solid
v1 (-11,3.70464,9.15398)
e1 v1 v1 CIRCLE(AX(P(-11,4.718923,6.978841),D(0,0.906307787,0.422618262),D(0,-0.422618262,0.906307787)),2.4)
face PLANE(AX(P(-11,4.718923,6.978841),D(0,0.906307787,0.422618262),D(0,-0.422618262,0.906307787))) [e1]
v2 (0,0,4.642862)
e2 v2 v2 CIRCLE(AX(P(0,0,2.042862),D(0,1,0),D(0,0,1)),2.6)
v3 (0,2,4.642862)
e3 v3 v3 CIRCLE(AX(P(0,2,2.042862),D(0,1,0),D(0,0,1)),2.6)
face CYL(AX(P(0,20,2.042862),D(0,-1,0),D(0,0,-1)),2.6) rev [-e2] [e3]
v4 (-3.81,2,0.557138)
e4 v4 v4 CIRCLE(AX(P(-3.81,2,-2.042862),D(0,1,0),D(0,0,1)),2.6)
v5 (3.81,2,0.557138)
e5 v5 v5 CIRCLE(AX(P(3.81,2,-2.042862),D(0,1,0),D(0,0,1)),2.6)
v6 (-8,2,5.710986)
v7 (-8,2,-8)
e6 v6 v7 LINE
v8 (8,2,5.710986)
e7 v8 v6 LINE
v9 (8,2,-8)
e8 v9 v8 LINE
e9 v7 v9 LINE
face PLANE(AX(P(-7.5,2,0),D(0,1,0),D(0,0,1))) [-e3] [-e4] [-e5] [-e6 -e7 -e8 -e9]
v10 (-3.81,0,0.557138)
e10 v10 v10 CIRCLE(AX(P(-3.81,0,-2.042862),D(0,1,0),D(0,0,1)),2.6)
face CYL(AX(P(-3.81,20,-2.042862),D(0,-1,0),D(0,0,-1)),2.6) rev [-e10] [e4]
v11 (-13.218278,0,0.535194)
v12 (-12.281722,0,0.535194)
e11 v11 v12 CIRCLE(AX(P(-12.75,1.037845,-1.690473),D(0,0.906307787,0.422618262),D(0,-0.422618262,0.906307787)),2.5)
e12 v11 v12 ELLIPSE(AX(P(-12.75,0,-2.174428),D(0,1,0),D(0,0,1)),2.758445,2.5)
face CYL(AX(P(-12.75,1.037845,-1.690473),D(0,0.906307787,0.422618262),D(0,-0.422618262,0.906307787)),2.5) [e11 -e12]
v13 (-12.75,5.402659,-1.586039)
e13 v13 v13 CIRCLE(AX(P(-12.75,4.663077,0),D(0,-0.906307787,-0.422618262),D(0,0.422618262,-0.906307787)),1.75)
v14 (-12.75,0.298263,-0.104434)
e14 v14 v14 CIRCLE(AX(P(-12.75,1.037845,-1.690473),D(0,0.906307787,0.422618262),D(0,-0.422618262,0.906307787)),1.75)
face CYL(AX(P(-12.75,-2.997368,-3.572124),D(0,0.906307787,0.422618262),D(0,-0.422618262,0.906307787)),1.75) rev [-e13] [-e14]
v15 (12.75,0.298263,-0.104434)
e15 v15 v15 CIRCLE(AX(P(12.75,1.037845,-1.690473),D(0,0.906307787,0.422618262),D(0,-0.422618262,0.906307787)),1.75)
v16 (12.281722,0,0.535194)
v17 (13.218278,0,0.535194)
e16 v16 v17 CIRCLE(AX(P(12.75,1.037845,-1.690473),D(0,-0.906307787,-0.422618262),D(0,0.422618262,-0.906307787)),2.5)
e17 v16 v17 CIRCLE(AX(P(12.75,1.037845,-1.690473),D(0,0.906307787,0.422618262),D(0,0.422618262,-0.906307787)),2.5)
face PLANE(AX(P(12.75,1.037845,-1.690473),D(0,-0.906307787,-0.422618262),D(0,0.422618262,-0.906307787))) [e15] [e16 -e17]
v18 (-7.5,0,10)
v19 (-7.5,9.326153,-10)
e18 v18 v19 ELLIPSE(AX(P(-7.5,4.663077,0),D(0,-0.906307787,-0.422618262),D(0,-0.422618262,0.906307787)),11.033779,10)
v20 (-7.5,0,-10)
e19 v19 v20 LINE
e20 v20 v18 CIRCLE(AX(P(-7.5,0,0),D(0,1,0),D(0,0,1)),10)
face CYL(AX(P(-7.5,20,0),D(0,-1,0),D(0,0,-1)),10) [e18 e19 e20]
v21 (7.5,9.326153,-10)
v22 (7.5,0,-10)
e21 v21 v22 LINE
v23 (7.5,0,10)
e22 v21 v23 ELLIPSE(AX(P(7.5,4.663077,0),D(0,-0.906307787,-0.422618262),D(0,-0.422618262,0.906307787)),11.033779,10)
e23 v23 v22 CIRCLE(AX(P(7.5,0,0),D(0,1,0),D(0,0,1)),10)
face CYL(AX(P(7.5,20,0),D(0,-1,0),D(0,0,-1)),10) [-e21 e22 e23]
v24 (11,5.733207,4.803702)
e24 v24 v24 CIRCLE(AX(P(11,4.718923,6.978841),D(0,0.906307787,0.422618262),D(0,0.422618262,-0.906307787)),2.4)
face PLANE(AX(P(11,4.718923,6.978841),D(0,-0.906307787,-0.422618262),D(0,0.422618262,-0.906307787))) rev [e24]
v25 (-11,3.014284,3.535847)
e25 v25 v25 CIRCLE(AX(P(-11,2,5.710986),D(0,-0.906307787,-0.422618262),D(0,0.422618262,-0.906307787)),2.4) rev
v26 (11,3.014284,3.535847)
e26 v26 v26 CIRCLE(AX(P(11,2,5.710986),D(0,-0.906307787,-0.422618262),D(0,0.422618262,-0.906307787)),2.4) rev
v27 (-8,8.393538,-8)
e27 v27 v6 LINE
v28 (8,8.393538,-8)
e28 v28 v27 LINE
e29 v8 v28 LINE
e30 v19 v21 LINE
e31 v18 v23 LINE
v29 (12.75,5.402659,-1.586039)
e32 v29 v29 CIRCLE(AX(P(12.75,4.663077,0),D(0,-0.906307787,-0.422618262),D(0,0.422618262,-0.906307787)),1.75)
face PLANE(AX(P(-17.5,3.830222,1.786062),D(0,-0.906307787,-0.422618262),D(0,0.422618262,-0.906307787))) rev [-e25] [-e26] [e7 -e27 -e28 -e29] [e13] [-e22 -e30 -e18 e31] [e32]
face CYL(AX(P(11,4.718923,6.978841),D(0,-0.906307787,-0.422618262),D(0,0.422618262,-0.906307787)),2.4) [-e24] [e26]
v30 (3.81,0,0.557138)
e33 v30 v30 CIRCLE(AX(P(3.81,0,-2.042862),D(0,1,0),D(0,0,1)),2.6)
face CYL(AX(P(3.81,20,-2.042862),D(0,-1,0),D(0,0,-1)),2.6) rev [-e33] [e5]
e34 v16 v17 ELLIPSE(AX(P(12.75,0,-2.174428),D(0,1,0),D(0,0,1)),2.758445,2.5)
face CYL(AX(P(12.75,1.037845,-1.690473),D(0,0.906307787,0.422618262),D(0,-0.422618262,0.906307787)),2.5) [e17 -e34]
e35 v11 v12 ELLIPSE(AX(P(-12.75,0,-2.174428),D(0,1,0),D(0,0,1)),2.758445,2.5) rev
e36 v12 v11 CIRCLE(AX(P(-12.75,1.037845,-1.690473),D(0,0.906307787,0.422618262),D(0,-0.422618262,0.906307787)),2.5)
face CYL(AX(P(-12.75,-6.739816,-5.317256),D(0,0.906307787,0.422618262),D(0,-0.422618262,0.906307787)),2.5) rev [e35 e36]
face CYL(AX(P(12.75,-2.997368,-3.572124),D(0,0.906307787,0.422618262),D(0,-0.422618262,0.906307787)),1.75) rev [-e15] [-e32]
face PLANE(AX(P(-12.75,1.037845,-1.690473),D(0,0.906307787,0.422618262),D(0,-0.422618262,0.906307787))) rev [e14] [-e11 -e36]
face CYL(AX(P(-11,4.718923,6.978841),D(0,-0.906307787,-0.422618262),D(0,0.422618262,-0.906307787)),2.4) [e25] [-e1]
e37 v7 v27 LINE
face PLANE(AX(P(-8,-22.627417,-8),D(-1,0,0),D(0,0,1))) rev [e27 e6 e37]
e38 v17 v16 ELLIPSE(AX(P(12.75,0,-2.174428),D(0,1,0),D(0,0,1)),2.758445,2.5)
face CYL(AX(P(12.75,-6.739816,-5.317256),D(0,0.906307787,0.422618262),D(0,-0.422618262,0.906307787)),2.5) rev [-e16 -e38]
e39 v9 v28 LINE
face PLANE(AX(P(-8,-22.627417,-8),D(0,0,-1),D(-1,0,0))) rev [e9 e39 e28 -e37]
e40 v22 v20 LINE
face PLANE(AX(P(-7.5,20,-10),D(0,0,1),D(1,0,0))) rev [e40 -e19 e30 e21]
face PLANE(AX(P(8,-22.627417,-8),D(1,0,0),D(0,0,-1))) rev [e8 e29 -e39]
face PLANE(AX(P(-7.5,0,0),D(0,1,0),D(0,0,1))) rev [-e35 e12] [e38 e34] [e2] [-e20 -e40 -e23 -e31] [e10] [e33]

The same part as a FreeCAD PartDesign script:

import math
import FreeCAD as App
import Part
import Sketcher
Q = App.Units.Quantity

doc = App.newDocument("Part")
params = doc.addObject("Spreadsheet::Sheet", "Params")
for row, (alias, value) in enumerate([
    ("sketch1_radius", "10 mm"),
    ("sketch1_diameter", "5.2 mm"),
    ("sketch1_width", "15 mm"),
    ("pad1_length", "20 mm"),
    ("sketch2_width", "16 mm"),
    ("pocket1_length", "18 mm"),
    ("sketch3_width", "20 mm"),
    ("sketch4_diameter", "3.5 mm"),
    ("sketch5_diameter", "5 mm"),
    ("sketch5_diameter2", "3.5 mm"),
    ("pad2_length", "4 mm"),
    ("sketch6_diameter", "5 mm"),
    ("sketch6_diameter2", "3.5 mm"),
    ("pocket4_length", "2.310905 mm"),
    ("sketch7_diameter", "4.8 mm"),
    ("pad3_length", "3 mm"),
], start=1):
    params.set(f"A{row}", alias)
    params.set(f"B{row}", "=" + value)
    params.setAlias(f"B{row}", alias)

body = doc.addObject("PartDesign::Body", "Body")

# Sketch on XZ plane
sketch1 = doc.addObject("Sketcher::SketchObject", "Sketch")
body.addObject(sketch1)
sketch1.AttachmentSupport = (doc.XZ_Plane, [""])
sketch1.MapMode = "FlatFace"
sketch1.addGeometry([
    Part.LineSegment(App.Vector(7.5, -10, 0), App.Vector(-7.5, -10, 0)),  # 0
    Part.ArcOfCircle(Part.Circle(App.Vector(-7.5, 0, 0), App.Vector(0, 0, 1), 10), math.radians(90), math.radians(270)),  # 1
    Part.LineSegment(App.Vector(-7.5, 10, 0), App.Vector(7.5, 10, 0)),  # 2
    Part.ArcOfCircle(Part.Circle(App.Vector(7.5, 0, 0), App.Vector(0, 0, 1), 10), math.radians(-90), math.radians(90)),  # 3
    Part.Circle(App.Vector(0, 2.042862, 0), App.Vector(0, 0, 1), 2.6),  # 4
    Part.Circle(App.Vector(3.81, -2.042862, 0), App.Vector(0, 0, 1), 2.6),  # 5
    Part.Circle(App.Vector(-3.81, -2.042862, 0), App.Vector(0, 0, 1), 2.6),  # 6
], False)
sketch1.addConstraint([
    Sketcher.Constraint("Tangent", 0, 2, 1, 2),
    Sketcher.Constraint("Tangent", 1, 1, 2, 1),
    Sketcher.Constraint("Tangent", 2, 2, 3, 2),
    Sketcher.Constraint("Tangent", 3, 1, 0, 1),
    Sketcher.Constraint("Horizontal", 0),
    Sketcher.Constraint("Horizontal", 2),
    Sketcher.Constraint("Equal", 4, 5),
    Sketcher.Constraint("Equal", 5, 6),
    Sketcher.Constraint("Symmetric", 1, 3, 3, 3, -1, 1),
    Sketcher.Constraint("Symmetric", 5, 3, 6, 3, -2),
    Sketcher.Constraint("PointOnObject", 4, 3, -2),
    Sketcher.Constraint("Radius", 1, 10.0),
    Sketcher.Constraint("Diameter", 4, 5.2),
    Sketcher.Constraint("DistanceX", 0, 2, 0, 1, 15.0),
    Sketcher.Constraint("DistanceX", -1, 1, 5, 3, 3.81),
    Sketcher.Constraint("DistanceY", -1, 1, 4, 3, 2.042862),
    Sketcher.Constraint("DistanceY", 5, 3, -1, 1, 2.042862),
])
sketch1.setExpression("Constraints[11]", "Params.sketch1_radius")
sketch1.setExpression("Constraints[12]", "Params.sketch1_diameter")
sketch1.setExpression("Constraints[13]", "Params.sketch1_width")
pad1 = doc.addObject("PartDesign::Pad", "Pad")
body.addObject(pad1)
pad1.Profile = sketch1
pad1.setExpression("Length", "Params.pad1_length")
pad1.Reversed = True

# Sketch on XZ plane
sketch2 = doc.addObject("Sketcher::SketchObject", "Sketch001")
body.addObject(sketch2)
sketch2.AttachmentSupport = (doc.XZ_Plane, [""])
sketch2.MapMode = "FlatFace"
sketch2.AttachmentOffset = App.Placement(App.Vector(0, 0, -20), App.Rotation())
sketch2.addGeometry([
    Part.LineSegment(App.Vector(-8, -8, 0), App.Vector(-8, 8, 0)),
    Part.LineSegment(App.Vector(-8, 8, 0), App.Vector(8, 8, 0)),
    Part.LineSegment(App.Vector(8, 8, 0), App.Vector(8, -8, 0)),
    Part.LineSegment(App.Vector(8, -8, 0), App.Vector(-8, -8, 0)),
], False)
sketch2.addConstraint([
    Sketcher.Constraint("Coincident", 0, 2, 1, 1),
    Sketcher.Constraint("Coincident", 1, 2, 2, 1),
    Sketcher.Constraint("Coincident", 2, 2, 3, 1),
    Sketcher.Constraint("Coincident", 3, 2, 0, 1),
    Sketcher.Constraint("Vertical", 0),
    Sketcher.Constraint("Horizontal", 1),
    Sketcher.Constraint("Vertical", 2),
    Sketcher.Constraint("Horizontal", 3),
    Sketcher.Constraint("Symmetric", 0, 2, 2, 2, -1, 1),
    Sketcher.Constraint("Equal", 3, 0),
    Sketcher.Constraint("DistanceX", 1, 1, 1, 2, 16.0),
])
sketch2.setExpression("Constraints[10]", "Params.sketch2_width")
pocket1 = doc.addObject("PartDesign::Pocket", "Pocket")
body.addObject(pocket1)
pocket1.Profile = sketch2
pocket1.setExpression("Length", "Params.pocket1_length")
pocket1.Reversed = True

# Sketch on YZ plane
sketch3 = doc.addObject("Sketcher::SketchObject", "Sketch002")
body.addObject(sketch3)
sketch3.AttachmentSupport = (doc.YZ_Plane, [""])
sketch3.MapMode = "FlatFace"
sketch3.AttachmentOffset = App.Placement(App.Vector(0, 0, -8), App.Rotation())
sketch3.addGeometry([
    Part.LineSegment(App.Vector(2, 5.710986, 0), App.Vector(8.393538, -8, 0)),  # 0
    Part.LineSegment(App.Vector(8.393538, -8, 0), App.Vector(9.326153, -10, 0)),  # 1
    Part.LineSegment(App.Vector(9.326153, -10, 0), App.Vector(20, -10, 0)),  # 2
    Part.LineSegment(App.Vector(20, -10, 0), App.Vector(20, 10, 0)),  # 3
    Part.LineSegment(App.Vector(20, 10, 0), App.Vector(0, 10, 0)),  # 4
    Part.LineSegment(App.Vector(0, 10, 0), App.Vector(2, 5.710986, 0)),  # 5
], False)
sketch3.addConstraint([
    Sketcher.Constraint("Coincident", 0, 2, 1, 1),
    Sketcher.Constraint("Coincident", 1, 2, 2, 1),
    Sketcher.Constraint("Coincident", 2, 2, 3, 1),
    Sketcher.Constraint("Coincident", 3, 2, 4, 1),
    Sketcher.Constraint("Coincident", 4, 2, 5, 1),
    Sketcher.Constraint("Coincident", 5, 2, 0, 1),
    Sketcher.Constraint("Horizontal", 2),
    Sketcher.Constraint("Vertical", 3),
    Sketcher.Constraint("Horizontal", 4),
    Sketcher.Constraint("PointOnObject", 4, 2, -2),
    Sketcher.Constraint("Parallel", 0, 1),
    Sketcher.Constraint("Parallel", 1, 5),
    Sketcher.Constraint("Equal", 4, 3),
    Sketcher.Constraint("DistanceX", 4, 2, 4, 1, 20.0),
    Sketcher.Constraint("Angle", 0, Q("-65 deg")),
    Sketcher.Constraint("DistanceY", 0, 2, -1, 1, 8.0),
    Sketcher.Constraint("DistanceY", 1, 2, -1, 1, 10.0),
    Sketcher.Constraint("DistanceX", -1, 1, 5, 2, 2.0),
])
sketch3.setExpression("Constraints[13]", "Params.sketch3_width")
pocket2 = doc.addObject("PartDesign::Pocket", "Pocket001")
body.addObject(pocket2)
pocket2.Profile = sketch3
pocket2.Type = "ThroughAll"
pocket2.Midplane = True

# Sketch on an angled plane
sketch4 = doc.addObject("Sketcher::SketchObject", "Sketch003")
body.addObject(sketch4)
sketch4.Placement = App.Placement(App.Vector(0, 3.830222, 1.786062), App.Rotation(App.Vector(1, 0, 0), App.Vector(0, 0.422618262, -0.906307787), App.Vector(0, 0.906307787, 0.422618262), "ZXY"))
sketch4.addGeometry([
    Part.Circle(App.Vector(-12.75, 1.970701, 0), App.Vector(0, 0, 1), 1.75),
    Part.Circle(App.Vector(12.75, 1.970701, 0), App.Vector(0, 0, 1), 1.75),
], False)
sketch4.addConstraint([
    Sketcher.Constraint("Equal", 0, 1),
    Sketcher.Constraint("Symmetric", 0, 3, 1, 3, -2),
    Sketcher.Constraint("Diameter", 0, 3.5),
    Sketcher.Constraint("DistanceX", 0, 3, 1, 3, 25.5),
    Sketcher.Constraint("DistanceY", -1, 1, 0, 3, 1.970701),
])
sketch4.setExpression("Constraints[2]", "Params.sketch4_diameter")
pocket3 = doc.addObject("PartDesign::Pocket", "Pocket002")
body.addObject(pocket3)
pocket3.Profile = sketch4
pocket3.Type = "ThroughAll"
pocket3.Midplane = True

# Sketch on an angled plane
sketch5 = doc.addObject("Sketcher::SketchObject", "Sketch004")
body.addObject(sketch5)
sketch5.Placement = App.Placement(App.Vector(0, 3.830222, 1.786062), App.Rotation(App.Vector(1, 0, 0), App.Vector(0, 0.422618262, -0.906307787), App.Vector(0, 0.906307787, 0.422618262), "ZXY"))
sketch5.addGeometry([
    Part.Circle(App.Vector(-12.75, 1.970701, 0), App.Vector(0, 0, 1), 2.5),
    Part.Circle(App.Vector(-12.75, 1.970701, 0), App.Vector(0, 0, 1), 1.75),
    Part.Circle(App.Vector(12.75, 1.970701, 0), App.Vector(0, 0, 1), 2.5),
    Part.Circle(App.Vector(12.75, 1.970701, 0), App.Vector(0, 0, 1), 1.75),
], False)
sketch5.addConstraint([
    Sketcher.Constraint("Coincident", 1, 3, 0, 3),
    Sketcher.Constraint("Coincident", 3, 3, 2, 3),
    Sketcher.Constraint("Equal", 0, 2),
    Sketcher.Constraint("Equal", 1, 3),
    Sketcher.Constraint("Symmetric", 0, 3, 2, 3, -2),
    Sketcher.Constraint("Diameter", 0, 5.0),
    Sketcher.Constraint("Diameter", 1, 3.5),
    Sketcher.Constraint("DistanceX", 0, 3, 2, 3, 25.5),
    Sketcher.Constraint("DistanceY", -1, 1, 0, 3, 1.970701),
])
sketch5.setExpression("Constraints[5]", "Params.sketch5_diameter")
sketch5.setExpression("Constraints[6]", "Params.sketch5_diameter2")
pad2 = doc.addObject("PartDesign::Pad", "Pad001")
body.addObject(pad2)
pad2.Profile = sketch5
pad2.setExpression("Length", "Params.pad2_length")
pad2.Reversed = True

# Sketch on an angled plane
sketch6 = doc.addObject("Sketcher::SketchObject", "Sketch005")
body.addObject(sketch6)
sketch6.Placement = App.Placement(App.Vector(0, -1.8894, -0.881042), App.Rotation(App.Vector(1, 0, 0), App.Vector(0, 0.422618262, -0.906307787), App.Vector(0, 0.906307787, 0.422618262), "ZXY"))
sketch6.addGeometry([
    Part.Circle(App.Vector(-12.75, 1.970701, 0), App.Vector(0, 0, 1), 2.5),
    Part.Circle(App.Vector(-12.75, 1.970701, 0), App.Vector(0, 0, 1), 1.75),
    Part.Circle(App.Vector(12.75, 1.970701, 0), App.Vector(0, 0, 1), 2.5),
    Part.Circle(App.Vector(12.75, 1.970701, 0), App.Vector(0, 0, 1), 1.75),
], False)
sketch6.addConstraint([
    Sketcher.Constraint("Coincident", 1, 3, 0, 3),
    Sketcher.Constraint("Coincident", 3, 3, 2, 3),
    Sketcher.Constraint("Equal", 0, 2),
    Sketcher.Constraint("Equal", 1, 3),
    Sketcher.Constraint("Symmetric", 0, 3, 2, 3, -2),
    Sketcher.Constraint("Diameter", 0, 5.0),
    Sketcher.Constraint("Diameter", 1, 3.5),
    Sketcher.Constraint("DistanceX", 0, 3, 2, 3, 25.5),
    Sketcher.Constraint("DistanceY", -1, 1, 0, 3, 1.970701),
])
sketch6.setExpression("Constraints[5]", "Params.sketch6_diameter")
sketch6.setExpression("Constraints[6]", "Params.sketch6_diameter2")
pocket4 = doc.addObject("PartDesign::Pocket", "Pocket003")
body.addObject(pocket4)
pocket4.Profile = sketch6
pocket4.setExpression("Length", "Params.pocket4_length")
pocket4.Reversed = True

# Sketch on an angled plane
sketch7 = doc.addObject("Sketcher::SketchObject", "Sketch006")
body.addObject(sketch7)
sketch7.Placement = App.Placement(App.Vector(0, 3.830222, 1.786062), App.Rotation(App.Vector(1, 0, 0), App.Vector(0, 0.422618262, -0.906307787), App.Vector(0, 0.906307787, 0.422618262), "ZXY"))
sketch7.addGeometry([
    Part.Circle(App.Vector(-11, -4.330675, 0), App.Vector(0, 0, 1), 2.4),
    Part.Circle(App.Vector(11, -4.330675, 0), App.Vector(0, 0, 1), 2.4),
], False)
sketch7.addConstraint([
    Sketcher.Constraint("Equal", 0, 1),
    Sketcher.Constraint("Symmetric", 0, 3, 1, 3, -2),
    Sketcher.Constraint("Diameter", 0, 4.8),
    Sketcher.Constraint("DistanceX", 0, 3, -1, 1, 11.0),
    Sketcher.Constraint("DistanceY", 0, 3, -1, 1, 4.330675),
])
sketch7.setExpression("Constraints[2]", "Params.sketch7_diameter")
pad3 = doc.addObject("PartDesign::Pad", "Pad002")
body.addObject(pad3)
pad3.Profile = sketch7
pad3.setExpression("Length", "Params.pad3_length")

doc.recompute()
